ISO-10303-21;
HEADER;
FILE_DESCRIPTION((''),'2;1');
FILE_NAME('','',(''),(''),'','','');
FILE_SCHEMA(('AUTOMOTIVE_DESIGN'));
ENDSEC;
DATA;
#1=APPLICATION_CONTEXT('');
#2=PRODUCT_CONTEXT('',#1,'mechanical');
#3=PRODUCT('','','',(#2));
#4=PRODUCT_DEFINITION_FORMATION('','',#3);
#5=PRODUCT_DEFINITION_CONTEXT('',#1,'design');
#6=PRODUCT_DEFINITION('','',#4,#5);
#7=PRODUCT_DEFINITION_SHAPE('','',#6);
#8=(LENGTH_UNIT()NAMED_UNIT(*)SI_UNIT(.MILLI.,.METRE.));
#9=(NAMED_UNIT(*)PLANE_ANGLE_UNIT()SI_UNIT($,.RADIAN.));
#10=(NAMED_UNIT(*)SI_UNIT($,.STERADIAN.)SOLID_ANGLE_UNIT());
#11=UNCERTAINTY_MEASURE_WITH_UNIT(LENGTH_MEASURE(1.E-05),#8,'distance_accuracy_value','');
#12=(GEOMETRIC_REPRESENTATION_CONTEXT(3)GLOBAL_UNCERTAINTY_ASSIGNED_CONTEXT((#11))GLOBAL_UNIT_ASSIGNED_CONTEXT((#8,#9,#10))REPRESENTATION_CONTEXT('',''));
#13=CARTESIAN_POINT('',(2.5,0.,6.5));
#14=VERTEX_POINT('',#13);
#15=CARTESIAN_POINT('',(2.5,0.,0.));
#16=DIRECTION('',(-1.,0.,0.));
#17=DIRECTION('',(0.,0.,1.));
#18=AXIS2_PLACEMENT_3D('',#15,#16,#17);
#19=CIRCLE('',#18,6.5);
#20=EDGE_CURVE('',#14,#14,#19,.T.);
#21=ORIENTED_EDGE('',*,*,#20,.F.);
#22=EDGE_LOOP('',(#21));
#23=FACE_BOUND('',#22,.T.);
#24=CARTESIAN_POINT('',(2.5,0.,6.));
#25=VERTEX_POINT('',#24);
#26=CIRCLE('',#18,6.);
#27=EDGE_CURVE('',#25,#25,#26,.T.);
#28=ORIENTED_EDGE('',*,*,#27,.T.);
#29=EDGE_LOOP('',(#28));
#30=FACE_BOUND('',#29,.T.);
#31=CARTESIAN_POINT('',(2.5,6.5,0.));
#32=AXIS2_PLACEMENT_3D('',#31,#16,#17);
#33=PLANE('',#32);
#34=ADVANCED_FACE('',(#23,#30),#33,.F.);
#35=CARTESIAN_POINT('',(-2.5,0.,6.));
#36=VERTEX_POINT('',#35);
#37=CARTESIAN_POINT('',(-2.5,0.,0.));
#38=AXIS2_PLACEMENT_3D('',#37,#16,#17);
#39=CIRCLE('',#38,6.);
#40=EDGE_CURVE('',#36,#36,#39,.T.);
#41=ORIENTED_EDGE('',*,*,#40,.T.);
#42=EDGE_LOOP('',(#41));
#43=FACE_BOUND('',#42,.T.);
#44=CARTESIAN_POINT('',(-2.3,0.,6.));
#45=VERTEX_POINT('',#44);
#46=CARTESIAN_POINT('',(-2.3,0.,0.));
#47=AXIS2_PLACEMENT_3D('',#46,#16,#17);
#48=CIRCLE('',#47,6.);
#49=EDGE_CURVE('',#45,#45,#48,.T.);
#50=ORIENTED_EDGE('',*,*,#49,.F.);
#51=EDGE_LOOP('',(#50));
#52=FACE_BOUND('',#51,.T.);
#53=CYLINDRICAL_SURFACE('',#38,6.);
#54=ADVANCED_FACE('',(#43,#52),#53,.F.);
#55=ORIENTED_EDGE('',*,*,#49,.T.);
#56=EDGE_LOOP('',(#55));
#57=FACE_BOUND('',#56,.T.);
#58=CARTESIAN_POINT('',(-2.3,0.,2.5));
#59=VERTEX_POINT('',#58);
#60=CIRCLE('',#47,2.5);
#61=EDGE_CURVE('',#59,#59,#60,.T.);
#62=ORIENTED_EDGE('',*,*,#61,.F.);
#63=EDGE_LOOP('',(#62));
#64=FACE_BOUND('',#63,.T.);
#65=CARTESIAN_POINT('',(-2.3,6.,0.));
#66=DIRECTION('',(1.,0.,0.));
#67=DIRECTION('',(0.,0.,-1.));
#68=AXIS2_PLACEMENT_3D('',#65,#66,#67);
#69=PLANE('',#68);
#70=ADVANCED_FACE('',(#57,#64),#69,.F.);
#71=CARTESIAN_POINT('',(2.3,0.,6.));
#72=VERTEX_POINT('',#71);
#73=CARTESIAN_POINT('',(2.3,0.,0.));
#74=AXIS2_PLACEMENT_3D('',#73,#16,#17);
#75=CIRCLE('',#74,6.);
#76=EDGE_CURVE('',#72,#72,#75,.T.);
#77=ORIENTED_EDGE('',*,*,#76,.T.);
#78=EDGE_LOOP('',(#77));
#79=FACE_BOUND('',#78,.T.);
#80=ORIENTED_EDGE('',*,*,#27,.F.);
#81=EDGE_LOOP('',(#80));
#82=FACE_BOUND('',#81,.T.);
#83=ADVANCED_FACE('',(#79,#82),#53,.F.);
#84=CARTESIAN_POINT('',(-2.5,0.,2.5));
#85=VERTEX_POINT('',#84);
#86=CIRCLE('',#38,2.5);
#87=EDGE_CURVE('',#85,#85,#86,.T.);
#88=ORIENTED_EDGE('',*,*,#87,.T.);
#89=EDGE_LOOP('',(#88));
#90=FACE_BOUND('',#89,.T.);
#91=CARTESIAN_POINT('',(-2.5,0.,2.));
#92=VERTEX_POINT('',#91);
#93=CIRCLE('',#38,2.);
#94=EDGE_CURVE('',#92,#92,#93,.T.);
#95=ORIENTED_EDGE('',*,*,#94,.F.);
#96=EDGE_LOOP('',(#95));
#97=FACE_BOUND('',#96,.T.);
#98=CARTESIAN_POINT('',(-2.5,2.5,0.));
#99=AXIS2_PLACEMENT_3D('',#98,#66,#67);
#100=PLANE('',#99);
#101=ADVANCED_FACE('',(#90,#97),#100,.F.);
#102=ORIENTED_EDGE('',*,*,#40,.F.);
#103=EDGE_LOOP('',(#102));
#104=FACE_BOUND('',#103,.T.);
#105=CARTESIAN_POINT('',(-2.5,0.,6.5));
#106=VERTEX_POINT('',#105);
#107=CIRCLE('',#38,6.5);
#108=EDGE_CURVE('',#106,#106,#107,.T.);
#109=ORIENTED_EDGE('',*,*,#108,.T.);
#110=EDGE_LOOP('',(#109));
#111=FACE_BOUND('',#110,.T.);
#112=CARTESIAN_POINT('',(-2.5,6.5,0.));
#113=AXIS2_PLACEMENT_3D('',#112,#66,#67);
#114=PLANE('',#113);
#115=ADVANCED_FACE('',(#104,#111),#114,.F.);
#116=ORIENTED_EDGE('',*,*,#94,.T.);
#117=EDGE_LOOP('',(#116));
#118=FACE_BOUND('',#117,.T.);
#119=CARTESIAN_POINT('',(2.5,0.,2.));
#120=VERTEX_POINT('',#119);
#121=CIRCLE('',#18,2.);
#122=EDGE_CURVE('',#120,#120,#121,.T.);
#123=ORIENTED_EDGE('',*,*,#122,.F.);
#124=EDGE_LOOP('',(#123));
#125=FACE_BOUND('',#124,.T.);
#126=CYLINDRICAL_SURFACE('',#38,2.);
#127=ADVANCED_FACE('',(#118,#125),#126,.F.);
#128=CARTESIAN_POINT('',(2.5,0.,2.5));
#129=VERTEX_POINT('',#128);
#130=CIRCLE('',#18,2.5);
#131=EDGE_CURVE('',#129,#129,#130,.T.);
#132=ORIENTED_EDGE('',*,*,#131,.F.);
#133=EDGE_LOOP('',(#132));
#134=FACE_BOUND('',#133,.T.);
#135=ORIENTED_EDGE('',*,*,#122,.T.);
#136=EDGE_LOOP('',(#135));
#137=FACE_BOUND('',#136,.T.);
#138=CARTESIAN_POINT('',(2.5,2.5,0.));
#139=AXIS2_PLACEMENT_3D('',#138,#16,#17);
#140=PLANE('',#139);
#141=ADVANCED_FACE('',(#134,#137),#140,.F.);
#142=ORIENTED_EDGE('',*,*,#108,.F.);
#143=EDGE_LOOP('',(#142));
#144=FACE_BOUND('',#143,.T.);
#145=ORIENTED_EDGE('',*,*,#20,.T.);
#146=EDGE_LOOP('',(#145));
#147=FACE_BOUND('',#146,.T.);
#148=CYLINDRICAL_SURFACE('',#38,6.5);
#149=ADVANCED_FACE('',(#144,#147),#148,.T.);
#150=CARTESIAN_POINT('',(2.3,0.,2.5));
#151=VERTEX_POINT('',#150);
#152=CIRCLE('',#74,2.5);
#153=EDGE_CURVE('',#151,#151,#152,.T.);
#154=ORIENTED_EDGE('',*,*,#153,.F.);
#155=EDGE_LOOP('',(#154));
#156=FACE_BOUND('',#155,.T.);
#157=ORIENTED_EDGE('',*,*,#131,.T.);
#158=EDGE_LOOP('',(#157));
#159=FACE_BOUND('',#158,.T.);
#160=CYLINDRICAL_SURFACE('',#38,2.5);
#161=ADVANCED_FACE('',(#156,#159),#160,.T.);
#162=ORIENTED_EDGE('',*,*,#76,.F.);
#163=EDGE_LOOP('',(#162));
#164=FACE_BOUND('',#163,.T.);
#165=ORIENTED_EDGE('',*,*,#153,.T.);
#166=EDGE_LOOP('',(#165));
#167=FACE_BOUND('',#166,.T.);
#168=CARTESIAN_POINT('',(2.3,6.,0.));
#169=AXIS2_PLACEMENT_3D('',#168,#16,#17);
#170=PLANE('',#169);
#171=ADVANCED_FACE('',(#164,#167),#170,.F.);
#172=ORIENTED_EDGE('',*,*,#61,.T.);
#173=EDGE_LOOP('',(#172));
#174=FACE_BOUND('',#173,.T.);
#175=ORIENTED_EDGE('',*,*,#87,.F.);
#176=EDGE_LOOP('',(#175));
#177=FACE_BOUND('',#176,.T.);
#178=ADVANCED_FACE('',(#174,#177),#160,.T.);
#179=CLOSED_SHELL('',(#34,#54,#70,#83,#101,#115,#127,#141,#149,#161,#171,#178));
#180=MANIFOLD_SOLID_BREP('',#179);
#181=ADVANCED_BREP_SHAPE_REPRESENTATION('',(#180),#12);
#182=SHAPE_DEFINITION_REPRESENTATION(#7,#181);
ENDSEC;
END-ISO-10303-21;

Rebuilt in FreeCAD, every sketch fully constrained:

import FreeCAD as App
import Part
import Sketcher

V = App.Vector
Q = App.Units.Quantity

doc = App.newDocument("Part")
body = doc.addObject("PartDesign::Body", "Body")

sketch1 = body.newObject("Sketcher::SketchObject", "Sketch")
sketch1.AttachmentSupport = (doc.getObject("XY_Plane"), [""])
sketch1.MapMode = "FlatFace"
sketch1.addGeometry([
    Part.LineSegment(V(-2.3, 2.5, 0), V(-2.5, 2.5, 0)),
    Part.LineSegment(V(-2.5, 2.5, 0), V(-2.5, 2, 0)),
    Part.LineSegment(V(-2.5, 2, 0), V(2.5, 2, 0)),
    Part.LineSegment(V(2.5, 2, 0), V(2.5, 2.5, 0)),
    Part.LineSegment(V(2.5, 2.5, 0), V(2.3, 2.5, 0)),
    Part.LineSegment(V(2.3, 2.5, 0), V(2.3, 6, 0)),
    Part.LineSegment(V(2.3, 6, 0), V(2.5, 6, 0)),
    Part.LineSegment(V(2.5, 6, 0), V(2.5, 6.5, 0)),
    Part.LineSegment(V(2.5, 6.5, 0), V(-2.5, 6.5, 0)),
    Part.LineSegment(V(-2.5, 6.5, 0), V(-2.5, 6, 0)),
    Part.LineSegment(V(-2.5, 6, 0), V(-2.3, 6, 0)),
    Part.LineSegment(V(-2.3, 6, 0), V(-2.3, 2.5, 0)),
], False)
sketch1.addConstraint([
    Sketcher.Constraint("Coincident", 0, 2, 1, 1),
    Sketcher.Constraint("Coincident", 1, 2, 2, 1),
    Sketcher.Constraint("Coincident", 2, 2, 3, 1),
    Sketcher.Constraint("Coincident", 3, 2, 4, 1),
    Sketcher.Constraint("Coincident", 4, 2, 5, 1),
    Sketcher.Constraint("Coincident", 5, 2, 6, 1),
    Sketcher.Constraint("Coincident", 6, 2, 7, 1),
    Sketcher.Constraint("Coincident", 7, 2, 8, 1),
    Sketcher.Constraint("Coincident", 8, 2, 9, 1),
    Sketcher.Constraint("Coincident", 9, 2, 10, 1),
    Sketcher.Constraint("Coincident", 10, 2, 11, 1),
    Sketcher.Constraint("Coincident", 11, 2, 0, 1),
    Sketcher.Constraint("Horizontal", 0),
    Sketcher.Constraint("Vertical", 1),
    Sketcher.Constraint("Horizontal", 2),
    Sketcher.Constraint("Vertical", 3),
    Sketcher.Constraint("Horizontal", 4),
    Sketcher.Constraint("Vertical", 5),
    Sketcher.Constraint("Horizontal", 6),
    Sketcher.Constraint("Vertical", 7),
    Sketcher.Constraint("Horizontal", 8),
    Sketcher.Constraint("Vertical", 9),
    Sketcher.Constraint("Horizontal", 10),
    Sketcher.Constraint("Vertical", 11),
    Sketcher.Constraint("Symmetric", 0, 2, 3, 2, -2),
    Sketcher.Constraint("Symmetric", 6, 2, 9, 2, -2),
    Sketcher.Constraint("Vertical", 3, 2, 6, 2),
    Sketcher.Constraint("Equal", 0, 4),
    Sketcher.Constraint("Equal", 3, 7),
    Sketcher.Constraint("DistanceX", 2, 1, 2, 2, Q("5 mm")),
    Sketcher.Constraint("DistanceX", 0, 2, 0, 1, Q("0.2 mm")),
    Sketcher.Constraint("DistanceY", 1, 2, 1, 1, Q("0.5 mm")),
    Sketcher.Constraint("DistanceY", 5, 1, 5, 2, Q("3.5 mm")),
    Sketcher.Constraint("DistanceY", -1, 1, 1, 2, Q("2 mm")),
])
revolution = body.newObject("PartDesign::Revolution", "Revolution")
revolution.Profile = sketch1
revolution.ReferenceAxis = (sketch1, ["H_Axis"])
revolution.Angle = 360

doc.recompute()
